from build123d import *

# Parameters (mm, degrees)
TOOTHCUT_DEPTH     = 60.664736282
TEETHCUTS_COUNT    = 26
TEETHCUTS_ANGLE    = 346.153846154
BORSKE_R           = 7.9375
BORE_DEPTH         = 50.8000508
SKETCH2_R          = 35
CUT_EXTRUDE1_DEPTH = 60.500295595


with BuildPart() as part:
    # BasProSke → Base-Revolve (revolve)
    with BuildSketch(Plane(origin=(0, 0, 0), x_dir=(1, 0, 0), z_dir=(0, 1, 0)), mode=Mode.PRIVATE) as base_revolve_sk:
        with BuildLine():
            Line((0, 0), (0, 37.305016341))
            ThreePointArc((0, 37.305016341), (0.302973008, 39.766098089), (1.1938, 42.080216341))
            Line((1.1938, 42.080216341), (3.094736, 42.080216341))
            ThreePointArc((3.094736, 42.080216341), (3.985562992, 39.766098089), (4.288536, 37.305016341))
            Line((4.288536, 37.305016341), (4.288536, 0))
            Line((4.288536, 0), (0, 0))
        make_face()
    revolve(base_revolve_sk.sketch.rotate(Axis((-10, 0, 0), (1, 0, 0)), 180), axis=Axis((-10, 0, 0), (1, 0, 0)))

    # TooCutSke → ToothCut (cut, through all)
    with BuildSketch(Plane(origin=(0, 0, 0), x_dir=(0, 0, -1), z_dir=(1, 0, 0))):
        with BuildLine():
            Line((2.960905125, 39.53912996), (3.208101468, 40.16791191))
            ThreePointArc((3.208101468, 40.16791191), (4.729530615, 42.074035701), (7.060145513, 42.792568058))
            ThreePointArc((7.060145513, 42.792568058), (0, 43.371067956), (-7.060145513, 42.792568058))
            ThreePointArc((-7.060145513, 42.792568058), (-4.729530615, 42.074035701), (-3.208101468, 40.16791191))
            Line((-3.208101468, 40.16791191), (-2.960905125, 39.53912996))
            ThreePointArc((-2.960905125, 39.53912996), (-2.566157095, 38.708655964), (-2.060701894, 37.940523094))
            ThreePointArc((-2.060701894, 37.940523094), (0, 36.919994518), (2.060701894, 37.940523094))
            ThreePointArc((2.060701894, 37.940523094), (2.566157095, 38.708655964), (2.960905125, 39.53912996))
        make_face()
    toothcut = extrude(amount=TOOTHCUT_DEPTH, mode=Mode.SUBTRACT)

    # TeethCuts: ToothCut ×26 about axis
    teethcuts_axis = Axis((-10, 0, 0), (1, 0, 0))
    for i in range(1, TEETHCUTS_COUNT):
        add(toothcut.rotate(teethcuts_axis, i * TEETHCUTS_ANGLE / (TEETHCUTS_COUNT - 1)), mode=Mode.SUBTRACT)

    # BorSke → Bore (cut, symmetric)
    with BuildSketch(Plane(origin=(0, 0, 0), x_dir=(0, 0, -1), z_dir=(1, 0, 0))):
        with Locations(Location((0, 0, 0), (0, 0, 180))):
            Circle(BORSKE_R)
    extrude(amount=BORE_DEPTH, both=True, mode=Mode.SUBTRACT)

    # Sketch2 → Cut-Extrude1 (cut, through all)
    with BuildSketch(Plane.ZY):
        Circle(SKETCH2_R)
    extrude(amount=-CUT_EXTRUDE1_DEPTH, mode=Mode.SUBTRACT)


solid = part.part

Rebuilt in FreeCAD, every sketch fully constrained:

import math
import FreeCAD as App
import Part
import Sketcher

V = App.Vector
Q = App.Units.Quantity

doc = App.newDocument("Part")
body = doc.addObject("PartDesign::Body", "Body")

sketch1 = body.newObject("Sketcher::SketchObject", "Sketch")
sketch1.AttachmentSupport = (doc.getObject("XZ_Plane"), [""])
sketch1.MapMode = "FlatFace"
sketch1.addGeometry([
    Part.LineSegment(V(0, -37.3, 0), V(0, 0, 0)),
    Part.LineSegment(V(0, 0, 0), V(4.3, 0, 0)),
    Part.LineSegment(V(4.3, 0, 0), V(4.3, -37.3, 0)),
    Part.ArcOfCircle(Part.Circle(V(-5.9, -37.3, 0), V(0, 0, 1), 10.1), math.radians(-28), math.radians(0)),
    Part.LineSegment(V(3.1, -42.1, 0), V(1.2, -42.1, 0)),
    Part.ArcOfCircle(Part.Circle(V(10.1, -37.3, 0), V(0, 0, 1), 10.1), math.radians(180), math.radians(208)),
], False)
sketch1.addConstraint([
    Sketcher.Constraint("Coincident", 0, 2, 1, 1),
    Sketcher.Constraint("Coincident", 1, 2, 2, 1),
    Sketcher.Constraint("Tangent", 2, 2, 3, 2),
    Sketcher.Constraint("Coincident", 3, 1, 4, 1),
    Sketcher.Constraint("Coincident", 4, 2, 5, 2),
    Sketcher.Constraint("Tangent", 5, 1, 0, 1),
    Sketcher.Constraint("Vertical", 0),
    Sketcher.Constraint("Horizontal", 1),
    Sketcher.Constraint("Vertical", 2),
    Sketcher.Constraint("Horizontal", 4),
    Sketcher.Constraint("Coincident", 0, 2, -1, 1),
    Sketcher.Constraint("Equal", 3, 5),
    Sketcher.Constraint("Horizontal", 3, 3, 5, 3),
    Sketcher.Constraint("Radius", 3, Q("0.3995 in")),
    Sketcher.Constraint("DistanceX", -1, 1, 4, 2, Q("0.047 in")),
    Sketcher.Constraint("DistanceX", 1, 1, 1, 2, Q("4.288536 mm")),
    Sketcher.Constraint("DistanceY", 0, 1, 0, 2, Q("37.305016 mm")),
])
revolution = body.newObject("PartDesign::Revolution", "Revolution")
revolution.Profile = sketch1
revolution.ReferenceAxis = (sketch1, ["H_Axis"])
revolution.Angle = 360

sketch2 = body.newObject("Sketcher::SketchObject", "Sketch001")
sketch2.AttachmentSupport = (doc.getObject("YZ_Plane"), [""])
sketch2.MapMode = "FlatFace"
sketch2.addGeometry([
    Part.LineSegment(V(39.5, -3, 0), V(40.2, -3.2, 0)),
    Part.ArcOfCircle(Part.Circle(V(38.7, -7.1, 0), V(0, 0, 1), 4.1), math.radians(0), math.radians(69)),
    Part.ArcOfCircle(Part.Circle(V(0, 0, 0), V(0, 0, 1), 43.4), math.radians(-9.37), math.radians(9.37)),
    Part.ArcOfCircle(Part.Circle(V(38.7, 7.1, 0), V(0, 0, 1), 4.1), math.radians(-69), math.radians(0)),
    Part.LineSegment(V(40.2, 3.2, 0), V(39.5, 3, 0)),
    Part.ArcOfCircle(Part.Circle(V(42, -3.2, 0), V(0, 0, 1), 6.7), math.radians(111.46), math.radians(127.31)),
    Part.ArcOfCircle(Part.Circle(V(39.5, 0, 0), V(0, 0, 1), 2.6), math.radians(127), math.radians(233)),
    Part.ArcOfCircle(Part.Circle(V(42, 3.2, 0), V(0, 0, 1), 6.7), math.radians(-127.31), math.radians(-111.46)),
], False)
sketch2.addConstraint([
    Sketcher.Constraint("Tangent", 0, 2, 1, 2),
    Sketcher.Constraint("Coincident", 1, 1, 2, 1),
    Sketcher.Constraint("Coincident", 2, 2, 3, 2),
    Sketcher.Constraint("Tangent", 3, 1, 4, 1),
    Sketcher.Constraint("Tangent", 4, 2, 5, 1),
    Sketcher.Constraint("Tangent", 5, 2, 6, 1),
    Sketcher.Constraint("Tangent", 6, 2, 7, 1),
    Sketcher.Constraint("Tangent", 7, 2, 0, 1),
    Sketcher.Constraint("Coincident", 2, 3, -1, 1),
    Sketcher.Constraint("Equal", 1, 3),
    Sketcher.Constraint("Equal", 5, 7),
    Sketcher.Constraint("Symmetric", 1, 3, 3, 3, -1),
    Sketcher.Constraint("Symmetric", 5, 3, 7, 3, -1),
    Sketcher.Constraint("Horizontal", 3, 3, 2, 2),
    Sketcher.Constraint("Radius", 5, Q("0.262 in")),
    Sketcher.Constraint("Radius", 6, Q("0.102 in")),
    Sketcher.Constraint("Radius", 1, Q("4.13903 mm")),
    Sketcher.Constraint("Radius", 2, Q("43.371068 mm")),
    Sketcher.Constraint("DistanceY", 0, 2, -1, 1, Q("3.208101 mm")),
    Sketcher.Constraint("DistanceY", -1, 1, 5, 2, Q("2.060702 mm")),
    Sketcher.Constraint("DistanceX", -1, 1, 0, 2, Q("40.167912 mm")),
])
pocket1 = body.newObject("PartDesign::Pocket", "Pocket")
pocket1.Profile = sketch2
pocket1.Type = "ThroughAll"
pocket1.Reversed = True
doc.recompute()

polarpattern = body.newObject("PartDesign::PolarPattern", "PolarPattern")
polarpattern.Originals = [pocket1]
polarpattern.Axis = (doc.getObject("X_Axis"), [""])
polarpattern.Angle = 360
polarpattern.Occurrences = 26
body.Tip = polarpattern

sketch3 = body.newObject("Sketcher::SketchObject", "Sketch002")
sketch3.AttachmentSupport = (doc.getObject("YZ_Plane"), [""])
sketch3.MapMode = "FlatFace"
sketch3.addGeometry(Part.Circle(V(0, 0, 0), V(0, 0, 1), 8), False)
sketch3.addConstraint([
    Sketcher.Constraint("Coincident", 0, 3, -1, 1),
    Sketcher.Constraint("Diameter", 0, Q("0.625 in")),
])
pocket2 = body.newObject("PartDesign::Pocket", "Pocket001")
pocket2.Profile = sketch3
pocket2.Length = 101.600102
pocket2.Midplane = True

sketch4 = body.newObject("Sketcher::SketchObject", "Sketch003")
sketch4.AttachmentSupport = (doc.getObject("YZ_Plane"), [""])
sketch4.MapMode = "FlatFace"
sketch4.addGeometry(Part.Circle(V(0, 0, 0), V(0, 0, 1), 35), False)
sketch4.addConstraint([
    Sketcher.Constraint("Coincident", 0, 3, -1, 1),
    Sketcher.Constraint("Diameter", 0, Q("70 mm")),
])
pocket3 = body.newObject("PartDesign::Pocket", "Pocket002")
pocket3.Profile = sketch4
pocket3.Type = "ThroughAll"
pocket3.Reversed = True

doc.recompute()
